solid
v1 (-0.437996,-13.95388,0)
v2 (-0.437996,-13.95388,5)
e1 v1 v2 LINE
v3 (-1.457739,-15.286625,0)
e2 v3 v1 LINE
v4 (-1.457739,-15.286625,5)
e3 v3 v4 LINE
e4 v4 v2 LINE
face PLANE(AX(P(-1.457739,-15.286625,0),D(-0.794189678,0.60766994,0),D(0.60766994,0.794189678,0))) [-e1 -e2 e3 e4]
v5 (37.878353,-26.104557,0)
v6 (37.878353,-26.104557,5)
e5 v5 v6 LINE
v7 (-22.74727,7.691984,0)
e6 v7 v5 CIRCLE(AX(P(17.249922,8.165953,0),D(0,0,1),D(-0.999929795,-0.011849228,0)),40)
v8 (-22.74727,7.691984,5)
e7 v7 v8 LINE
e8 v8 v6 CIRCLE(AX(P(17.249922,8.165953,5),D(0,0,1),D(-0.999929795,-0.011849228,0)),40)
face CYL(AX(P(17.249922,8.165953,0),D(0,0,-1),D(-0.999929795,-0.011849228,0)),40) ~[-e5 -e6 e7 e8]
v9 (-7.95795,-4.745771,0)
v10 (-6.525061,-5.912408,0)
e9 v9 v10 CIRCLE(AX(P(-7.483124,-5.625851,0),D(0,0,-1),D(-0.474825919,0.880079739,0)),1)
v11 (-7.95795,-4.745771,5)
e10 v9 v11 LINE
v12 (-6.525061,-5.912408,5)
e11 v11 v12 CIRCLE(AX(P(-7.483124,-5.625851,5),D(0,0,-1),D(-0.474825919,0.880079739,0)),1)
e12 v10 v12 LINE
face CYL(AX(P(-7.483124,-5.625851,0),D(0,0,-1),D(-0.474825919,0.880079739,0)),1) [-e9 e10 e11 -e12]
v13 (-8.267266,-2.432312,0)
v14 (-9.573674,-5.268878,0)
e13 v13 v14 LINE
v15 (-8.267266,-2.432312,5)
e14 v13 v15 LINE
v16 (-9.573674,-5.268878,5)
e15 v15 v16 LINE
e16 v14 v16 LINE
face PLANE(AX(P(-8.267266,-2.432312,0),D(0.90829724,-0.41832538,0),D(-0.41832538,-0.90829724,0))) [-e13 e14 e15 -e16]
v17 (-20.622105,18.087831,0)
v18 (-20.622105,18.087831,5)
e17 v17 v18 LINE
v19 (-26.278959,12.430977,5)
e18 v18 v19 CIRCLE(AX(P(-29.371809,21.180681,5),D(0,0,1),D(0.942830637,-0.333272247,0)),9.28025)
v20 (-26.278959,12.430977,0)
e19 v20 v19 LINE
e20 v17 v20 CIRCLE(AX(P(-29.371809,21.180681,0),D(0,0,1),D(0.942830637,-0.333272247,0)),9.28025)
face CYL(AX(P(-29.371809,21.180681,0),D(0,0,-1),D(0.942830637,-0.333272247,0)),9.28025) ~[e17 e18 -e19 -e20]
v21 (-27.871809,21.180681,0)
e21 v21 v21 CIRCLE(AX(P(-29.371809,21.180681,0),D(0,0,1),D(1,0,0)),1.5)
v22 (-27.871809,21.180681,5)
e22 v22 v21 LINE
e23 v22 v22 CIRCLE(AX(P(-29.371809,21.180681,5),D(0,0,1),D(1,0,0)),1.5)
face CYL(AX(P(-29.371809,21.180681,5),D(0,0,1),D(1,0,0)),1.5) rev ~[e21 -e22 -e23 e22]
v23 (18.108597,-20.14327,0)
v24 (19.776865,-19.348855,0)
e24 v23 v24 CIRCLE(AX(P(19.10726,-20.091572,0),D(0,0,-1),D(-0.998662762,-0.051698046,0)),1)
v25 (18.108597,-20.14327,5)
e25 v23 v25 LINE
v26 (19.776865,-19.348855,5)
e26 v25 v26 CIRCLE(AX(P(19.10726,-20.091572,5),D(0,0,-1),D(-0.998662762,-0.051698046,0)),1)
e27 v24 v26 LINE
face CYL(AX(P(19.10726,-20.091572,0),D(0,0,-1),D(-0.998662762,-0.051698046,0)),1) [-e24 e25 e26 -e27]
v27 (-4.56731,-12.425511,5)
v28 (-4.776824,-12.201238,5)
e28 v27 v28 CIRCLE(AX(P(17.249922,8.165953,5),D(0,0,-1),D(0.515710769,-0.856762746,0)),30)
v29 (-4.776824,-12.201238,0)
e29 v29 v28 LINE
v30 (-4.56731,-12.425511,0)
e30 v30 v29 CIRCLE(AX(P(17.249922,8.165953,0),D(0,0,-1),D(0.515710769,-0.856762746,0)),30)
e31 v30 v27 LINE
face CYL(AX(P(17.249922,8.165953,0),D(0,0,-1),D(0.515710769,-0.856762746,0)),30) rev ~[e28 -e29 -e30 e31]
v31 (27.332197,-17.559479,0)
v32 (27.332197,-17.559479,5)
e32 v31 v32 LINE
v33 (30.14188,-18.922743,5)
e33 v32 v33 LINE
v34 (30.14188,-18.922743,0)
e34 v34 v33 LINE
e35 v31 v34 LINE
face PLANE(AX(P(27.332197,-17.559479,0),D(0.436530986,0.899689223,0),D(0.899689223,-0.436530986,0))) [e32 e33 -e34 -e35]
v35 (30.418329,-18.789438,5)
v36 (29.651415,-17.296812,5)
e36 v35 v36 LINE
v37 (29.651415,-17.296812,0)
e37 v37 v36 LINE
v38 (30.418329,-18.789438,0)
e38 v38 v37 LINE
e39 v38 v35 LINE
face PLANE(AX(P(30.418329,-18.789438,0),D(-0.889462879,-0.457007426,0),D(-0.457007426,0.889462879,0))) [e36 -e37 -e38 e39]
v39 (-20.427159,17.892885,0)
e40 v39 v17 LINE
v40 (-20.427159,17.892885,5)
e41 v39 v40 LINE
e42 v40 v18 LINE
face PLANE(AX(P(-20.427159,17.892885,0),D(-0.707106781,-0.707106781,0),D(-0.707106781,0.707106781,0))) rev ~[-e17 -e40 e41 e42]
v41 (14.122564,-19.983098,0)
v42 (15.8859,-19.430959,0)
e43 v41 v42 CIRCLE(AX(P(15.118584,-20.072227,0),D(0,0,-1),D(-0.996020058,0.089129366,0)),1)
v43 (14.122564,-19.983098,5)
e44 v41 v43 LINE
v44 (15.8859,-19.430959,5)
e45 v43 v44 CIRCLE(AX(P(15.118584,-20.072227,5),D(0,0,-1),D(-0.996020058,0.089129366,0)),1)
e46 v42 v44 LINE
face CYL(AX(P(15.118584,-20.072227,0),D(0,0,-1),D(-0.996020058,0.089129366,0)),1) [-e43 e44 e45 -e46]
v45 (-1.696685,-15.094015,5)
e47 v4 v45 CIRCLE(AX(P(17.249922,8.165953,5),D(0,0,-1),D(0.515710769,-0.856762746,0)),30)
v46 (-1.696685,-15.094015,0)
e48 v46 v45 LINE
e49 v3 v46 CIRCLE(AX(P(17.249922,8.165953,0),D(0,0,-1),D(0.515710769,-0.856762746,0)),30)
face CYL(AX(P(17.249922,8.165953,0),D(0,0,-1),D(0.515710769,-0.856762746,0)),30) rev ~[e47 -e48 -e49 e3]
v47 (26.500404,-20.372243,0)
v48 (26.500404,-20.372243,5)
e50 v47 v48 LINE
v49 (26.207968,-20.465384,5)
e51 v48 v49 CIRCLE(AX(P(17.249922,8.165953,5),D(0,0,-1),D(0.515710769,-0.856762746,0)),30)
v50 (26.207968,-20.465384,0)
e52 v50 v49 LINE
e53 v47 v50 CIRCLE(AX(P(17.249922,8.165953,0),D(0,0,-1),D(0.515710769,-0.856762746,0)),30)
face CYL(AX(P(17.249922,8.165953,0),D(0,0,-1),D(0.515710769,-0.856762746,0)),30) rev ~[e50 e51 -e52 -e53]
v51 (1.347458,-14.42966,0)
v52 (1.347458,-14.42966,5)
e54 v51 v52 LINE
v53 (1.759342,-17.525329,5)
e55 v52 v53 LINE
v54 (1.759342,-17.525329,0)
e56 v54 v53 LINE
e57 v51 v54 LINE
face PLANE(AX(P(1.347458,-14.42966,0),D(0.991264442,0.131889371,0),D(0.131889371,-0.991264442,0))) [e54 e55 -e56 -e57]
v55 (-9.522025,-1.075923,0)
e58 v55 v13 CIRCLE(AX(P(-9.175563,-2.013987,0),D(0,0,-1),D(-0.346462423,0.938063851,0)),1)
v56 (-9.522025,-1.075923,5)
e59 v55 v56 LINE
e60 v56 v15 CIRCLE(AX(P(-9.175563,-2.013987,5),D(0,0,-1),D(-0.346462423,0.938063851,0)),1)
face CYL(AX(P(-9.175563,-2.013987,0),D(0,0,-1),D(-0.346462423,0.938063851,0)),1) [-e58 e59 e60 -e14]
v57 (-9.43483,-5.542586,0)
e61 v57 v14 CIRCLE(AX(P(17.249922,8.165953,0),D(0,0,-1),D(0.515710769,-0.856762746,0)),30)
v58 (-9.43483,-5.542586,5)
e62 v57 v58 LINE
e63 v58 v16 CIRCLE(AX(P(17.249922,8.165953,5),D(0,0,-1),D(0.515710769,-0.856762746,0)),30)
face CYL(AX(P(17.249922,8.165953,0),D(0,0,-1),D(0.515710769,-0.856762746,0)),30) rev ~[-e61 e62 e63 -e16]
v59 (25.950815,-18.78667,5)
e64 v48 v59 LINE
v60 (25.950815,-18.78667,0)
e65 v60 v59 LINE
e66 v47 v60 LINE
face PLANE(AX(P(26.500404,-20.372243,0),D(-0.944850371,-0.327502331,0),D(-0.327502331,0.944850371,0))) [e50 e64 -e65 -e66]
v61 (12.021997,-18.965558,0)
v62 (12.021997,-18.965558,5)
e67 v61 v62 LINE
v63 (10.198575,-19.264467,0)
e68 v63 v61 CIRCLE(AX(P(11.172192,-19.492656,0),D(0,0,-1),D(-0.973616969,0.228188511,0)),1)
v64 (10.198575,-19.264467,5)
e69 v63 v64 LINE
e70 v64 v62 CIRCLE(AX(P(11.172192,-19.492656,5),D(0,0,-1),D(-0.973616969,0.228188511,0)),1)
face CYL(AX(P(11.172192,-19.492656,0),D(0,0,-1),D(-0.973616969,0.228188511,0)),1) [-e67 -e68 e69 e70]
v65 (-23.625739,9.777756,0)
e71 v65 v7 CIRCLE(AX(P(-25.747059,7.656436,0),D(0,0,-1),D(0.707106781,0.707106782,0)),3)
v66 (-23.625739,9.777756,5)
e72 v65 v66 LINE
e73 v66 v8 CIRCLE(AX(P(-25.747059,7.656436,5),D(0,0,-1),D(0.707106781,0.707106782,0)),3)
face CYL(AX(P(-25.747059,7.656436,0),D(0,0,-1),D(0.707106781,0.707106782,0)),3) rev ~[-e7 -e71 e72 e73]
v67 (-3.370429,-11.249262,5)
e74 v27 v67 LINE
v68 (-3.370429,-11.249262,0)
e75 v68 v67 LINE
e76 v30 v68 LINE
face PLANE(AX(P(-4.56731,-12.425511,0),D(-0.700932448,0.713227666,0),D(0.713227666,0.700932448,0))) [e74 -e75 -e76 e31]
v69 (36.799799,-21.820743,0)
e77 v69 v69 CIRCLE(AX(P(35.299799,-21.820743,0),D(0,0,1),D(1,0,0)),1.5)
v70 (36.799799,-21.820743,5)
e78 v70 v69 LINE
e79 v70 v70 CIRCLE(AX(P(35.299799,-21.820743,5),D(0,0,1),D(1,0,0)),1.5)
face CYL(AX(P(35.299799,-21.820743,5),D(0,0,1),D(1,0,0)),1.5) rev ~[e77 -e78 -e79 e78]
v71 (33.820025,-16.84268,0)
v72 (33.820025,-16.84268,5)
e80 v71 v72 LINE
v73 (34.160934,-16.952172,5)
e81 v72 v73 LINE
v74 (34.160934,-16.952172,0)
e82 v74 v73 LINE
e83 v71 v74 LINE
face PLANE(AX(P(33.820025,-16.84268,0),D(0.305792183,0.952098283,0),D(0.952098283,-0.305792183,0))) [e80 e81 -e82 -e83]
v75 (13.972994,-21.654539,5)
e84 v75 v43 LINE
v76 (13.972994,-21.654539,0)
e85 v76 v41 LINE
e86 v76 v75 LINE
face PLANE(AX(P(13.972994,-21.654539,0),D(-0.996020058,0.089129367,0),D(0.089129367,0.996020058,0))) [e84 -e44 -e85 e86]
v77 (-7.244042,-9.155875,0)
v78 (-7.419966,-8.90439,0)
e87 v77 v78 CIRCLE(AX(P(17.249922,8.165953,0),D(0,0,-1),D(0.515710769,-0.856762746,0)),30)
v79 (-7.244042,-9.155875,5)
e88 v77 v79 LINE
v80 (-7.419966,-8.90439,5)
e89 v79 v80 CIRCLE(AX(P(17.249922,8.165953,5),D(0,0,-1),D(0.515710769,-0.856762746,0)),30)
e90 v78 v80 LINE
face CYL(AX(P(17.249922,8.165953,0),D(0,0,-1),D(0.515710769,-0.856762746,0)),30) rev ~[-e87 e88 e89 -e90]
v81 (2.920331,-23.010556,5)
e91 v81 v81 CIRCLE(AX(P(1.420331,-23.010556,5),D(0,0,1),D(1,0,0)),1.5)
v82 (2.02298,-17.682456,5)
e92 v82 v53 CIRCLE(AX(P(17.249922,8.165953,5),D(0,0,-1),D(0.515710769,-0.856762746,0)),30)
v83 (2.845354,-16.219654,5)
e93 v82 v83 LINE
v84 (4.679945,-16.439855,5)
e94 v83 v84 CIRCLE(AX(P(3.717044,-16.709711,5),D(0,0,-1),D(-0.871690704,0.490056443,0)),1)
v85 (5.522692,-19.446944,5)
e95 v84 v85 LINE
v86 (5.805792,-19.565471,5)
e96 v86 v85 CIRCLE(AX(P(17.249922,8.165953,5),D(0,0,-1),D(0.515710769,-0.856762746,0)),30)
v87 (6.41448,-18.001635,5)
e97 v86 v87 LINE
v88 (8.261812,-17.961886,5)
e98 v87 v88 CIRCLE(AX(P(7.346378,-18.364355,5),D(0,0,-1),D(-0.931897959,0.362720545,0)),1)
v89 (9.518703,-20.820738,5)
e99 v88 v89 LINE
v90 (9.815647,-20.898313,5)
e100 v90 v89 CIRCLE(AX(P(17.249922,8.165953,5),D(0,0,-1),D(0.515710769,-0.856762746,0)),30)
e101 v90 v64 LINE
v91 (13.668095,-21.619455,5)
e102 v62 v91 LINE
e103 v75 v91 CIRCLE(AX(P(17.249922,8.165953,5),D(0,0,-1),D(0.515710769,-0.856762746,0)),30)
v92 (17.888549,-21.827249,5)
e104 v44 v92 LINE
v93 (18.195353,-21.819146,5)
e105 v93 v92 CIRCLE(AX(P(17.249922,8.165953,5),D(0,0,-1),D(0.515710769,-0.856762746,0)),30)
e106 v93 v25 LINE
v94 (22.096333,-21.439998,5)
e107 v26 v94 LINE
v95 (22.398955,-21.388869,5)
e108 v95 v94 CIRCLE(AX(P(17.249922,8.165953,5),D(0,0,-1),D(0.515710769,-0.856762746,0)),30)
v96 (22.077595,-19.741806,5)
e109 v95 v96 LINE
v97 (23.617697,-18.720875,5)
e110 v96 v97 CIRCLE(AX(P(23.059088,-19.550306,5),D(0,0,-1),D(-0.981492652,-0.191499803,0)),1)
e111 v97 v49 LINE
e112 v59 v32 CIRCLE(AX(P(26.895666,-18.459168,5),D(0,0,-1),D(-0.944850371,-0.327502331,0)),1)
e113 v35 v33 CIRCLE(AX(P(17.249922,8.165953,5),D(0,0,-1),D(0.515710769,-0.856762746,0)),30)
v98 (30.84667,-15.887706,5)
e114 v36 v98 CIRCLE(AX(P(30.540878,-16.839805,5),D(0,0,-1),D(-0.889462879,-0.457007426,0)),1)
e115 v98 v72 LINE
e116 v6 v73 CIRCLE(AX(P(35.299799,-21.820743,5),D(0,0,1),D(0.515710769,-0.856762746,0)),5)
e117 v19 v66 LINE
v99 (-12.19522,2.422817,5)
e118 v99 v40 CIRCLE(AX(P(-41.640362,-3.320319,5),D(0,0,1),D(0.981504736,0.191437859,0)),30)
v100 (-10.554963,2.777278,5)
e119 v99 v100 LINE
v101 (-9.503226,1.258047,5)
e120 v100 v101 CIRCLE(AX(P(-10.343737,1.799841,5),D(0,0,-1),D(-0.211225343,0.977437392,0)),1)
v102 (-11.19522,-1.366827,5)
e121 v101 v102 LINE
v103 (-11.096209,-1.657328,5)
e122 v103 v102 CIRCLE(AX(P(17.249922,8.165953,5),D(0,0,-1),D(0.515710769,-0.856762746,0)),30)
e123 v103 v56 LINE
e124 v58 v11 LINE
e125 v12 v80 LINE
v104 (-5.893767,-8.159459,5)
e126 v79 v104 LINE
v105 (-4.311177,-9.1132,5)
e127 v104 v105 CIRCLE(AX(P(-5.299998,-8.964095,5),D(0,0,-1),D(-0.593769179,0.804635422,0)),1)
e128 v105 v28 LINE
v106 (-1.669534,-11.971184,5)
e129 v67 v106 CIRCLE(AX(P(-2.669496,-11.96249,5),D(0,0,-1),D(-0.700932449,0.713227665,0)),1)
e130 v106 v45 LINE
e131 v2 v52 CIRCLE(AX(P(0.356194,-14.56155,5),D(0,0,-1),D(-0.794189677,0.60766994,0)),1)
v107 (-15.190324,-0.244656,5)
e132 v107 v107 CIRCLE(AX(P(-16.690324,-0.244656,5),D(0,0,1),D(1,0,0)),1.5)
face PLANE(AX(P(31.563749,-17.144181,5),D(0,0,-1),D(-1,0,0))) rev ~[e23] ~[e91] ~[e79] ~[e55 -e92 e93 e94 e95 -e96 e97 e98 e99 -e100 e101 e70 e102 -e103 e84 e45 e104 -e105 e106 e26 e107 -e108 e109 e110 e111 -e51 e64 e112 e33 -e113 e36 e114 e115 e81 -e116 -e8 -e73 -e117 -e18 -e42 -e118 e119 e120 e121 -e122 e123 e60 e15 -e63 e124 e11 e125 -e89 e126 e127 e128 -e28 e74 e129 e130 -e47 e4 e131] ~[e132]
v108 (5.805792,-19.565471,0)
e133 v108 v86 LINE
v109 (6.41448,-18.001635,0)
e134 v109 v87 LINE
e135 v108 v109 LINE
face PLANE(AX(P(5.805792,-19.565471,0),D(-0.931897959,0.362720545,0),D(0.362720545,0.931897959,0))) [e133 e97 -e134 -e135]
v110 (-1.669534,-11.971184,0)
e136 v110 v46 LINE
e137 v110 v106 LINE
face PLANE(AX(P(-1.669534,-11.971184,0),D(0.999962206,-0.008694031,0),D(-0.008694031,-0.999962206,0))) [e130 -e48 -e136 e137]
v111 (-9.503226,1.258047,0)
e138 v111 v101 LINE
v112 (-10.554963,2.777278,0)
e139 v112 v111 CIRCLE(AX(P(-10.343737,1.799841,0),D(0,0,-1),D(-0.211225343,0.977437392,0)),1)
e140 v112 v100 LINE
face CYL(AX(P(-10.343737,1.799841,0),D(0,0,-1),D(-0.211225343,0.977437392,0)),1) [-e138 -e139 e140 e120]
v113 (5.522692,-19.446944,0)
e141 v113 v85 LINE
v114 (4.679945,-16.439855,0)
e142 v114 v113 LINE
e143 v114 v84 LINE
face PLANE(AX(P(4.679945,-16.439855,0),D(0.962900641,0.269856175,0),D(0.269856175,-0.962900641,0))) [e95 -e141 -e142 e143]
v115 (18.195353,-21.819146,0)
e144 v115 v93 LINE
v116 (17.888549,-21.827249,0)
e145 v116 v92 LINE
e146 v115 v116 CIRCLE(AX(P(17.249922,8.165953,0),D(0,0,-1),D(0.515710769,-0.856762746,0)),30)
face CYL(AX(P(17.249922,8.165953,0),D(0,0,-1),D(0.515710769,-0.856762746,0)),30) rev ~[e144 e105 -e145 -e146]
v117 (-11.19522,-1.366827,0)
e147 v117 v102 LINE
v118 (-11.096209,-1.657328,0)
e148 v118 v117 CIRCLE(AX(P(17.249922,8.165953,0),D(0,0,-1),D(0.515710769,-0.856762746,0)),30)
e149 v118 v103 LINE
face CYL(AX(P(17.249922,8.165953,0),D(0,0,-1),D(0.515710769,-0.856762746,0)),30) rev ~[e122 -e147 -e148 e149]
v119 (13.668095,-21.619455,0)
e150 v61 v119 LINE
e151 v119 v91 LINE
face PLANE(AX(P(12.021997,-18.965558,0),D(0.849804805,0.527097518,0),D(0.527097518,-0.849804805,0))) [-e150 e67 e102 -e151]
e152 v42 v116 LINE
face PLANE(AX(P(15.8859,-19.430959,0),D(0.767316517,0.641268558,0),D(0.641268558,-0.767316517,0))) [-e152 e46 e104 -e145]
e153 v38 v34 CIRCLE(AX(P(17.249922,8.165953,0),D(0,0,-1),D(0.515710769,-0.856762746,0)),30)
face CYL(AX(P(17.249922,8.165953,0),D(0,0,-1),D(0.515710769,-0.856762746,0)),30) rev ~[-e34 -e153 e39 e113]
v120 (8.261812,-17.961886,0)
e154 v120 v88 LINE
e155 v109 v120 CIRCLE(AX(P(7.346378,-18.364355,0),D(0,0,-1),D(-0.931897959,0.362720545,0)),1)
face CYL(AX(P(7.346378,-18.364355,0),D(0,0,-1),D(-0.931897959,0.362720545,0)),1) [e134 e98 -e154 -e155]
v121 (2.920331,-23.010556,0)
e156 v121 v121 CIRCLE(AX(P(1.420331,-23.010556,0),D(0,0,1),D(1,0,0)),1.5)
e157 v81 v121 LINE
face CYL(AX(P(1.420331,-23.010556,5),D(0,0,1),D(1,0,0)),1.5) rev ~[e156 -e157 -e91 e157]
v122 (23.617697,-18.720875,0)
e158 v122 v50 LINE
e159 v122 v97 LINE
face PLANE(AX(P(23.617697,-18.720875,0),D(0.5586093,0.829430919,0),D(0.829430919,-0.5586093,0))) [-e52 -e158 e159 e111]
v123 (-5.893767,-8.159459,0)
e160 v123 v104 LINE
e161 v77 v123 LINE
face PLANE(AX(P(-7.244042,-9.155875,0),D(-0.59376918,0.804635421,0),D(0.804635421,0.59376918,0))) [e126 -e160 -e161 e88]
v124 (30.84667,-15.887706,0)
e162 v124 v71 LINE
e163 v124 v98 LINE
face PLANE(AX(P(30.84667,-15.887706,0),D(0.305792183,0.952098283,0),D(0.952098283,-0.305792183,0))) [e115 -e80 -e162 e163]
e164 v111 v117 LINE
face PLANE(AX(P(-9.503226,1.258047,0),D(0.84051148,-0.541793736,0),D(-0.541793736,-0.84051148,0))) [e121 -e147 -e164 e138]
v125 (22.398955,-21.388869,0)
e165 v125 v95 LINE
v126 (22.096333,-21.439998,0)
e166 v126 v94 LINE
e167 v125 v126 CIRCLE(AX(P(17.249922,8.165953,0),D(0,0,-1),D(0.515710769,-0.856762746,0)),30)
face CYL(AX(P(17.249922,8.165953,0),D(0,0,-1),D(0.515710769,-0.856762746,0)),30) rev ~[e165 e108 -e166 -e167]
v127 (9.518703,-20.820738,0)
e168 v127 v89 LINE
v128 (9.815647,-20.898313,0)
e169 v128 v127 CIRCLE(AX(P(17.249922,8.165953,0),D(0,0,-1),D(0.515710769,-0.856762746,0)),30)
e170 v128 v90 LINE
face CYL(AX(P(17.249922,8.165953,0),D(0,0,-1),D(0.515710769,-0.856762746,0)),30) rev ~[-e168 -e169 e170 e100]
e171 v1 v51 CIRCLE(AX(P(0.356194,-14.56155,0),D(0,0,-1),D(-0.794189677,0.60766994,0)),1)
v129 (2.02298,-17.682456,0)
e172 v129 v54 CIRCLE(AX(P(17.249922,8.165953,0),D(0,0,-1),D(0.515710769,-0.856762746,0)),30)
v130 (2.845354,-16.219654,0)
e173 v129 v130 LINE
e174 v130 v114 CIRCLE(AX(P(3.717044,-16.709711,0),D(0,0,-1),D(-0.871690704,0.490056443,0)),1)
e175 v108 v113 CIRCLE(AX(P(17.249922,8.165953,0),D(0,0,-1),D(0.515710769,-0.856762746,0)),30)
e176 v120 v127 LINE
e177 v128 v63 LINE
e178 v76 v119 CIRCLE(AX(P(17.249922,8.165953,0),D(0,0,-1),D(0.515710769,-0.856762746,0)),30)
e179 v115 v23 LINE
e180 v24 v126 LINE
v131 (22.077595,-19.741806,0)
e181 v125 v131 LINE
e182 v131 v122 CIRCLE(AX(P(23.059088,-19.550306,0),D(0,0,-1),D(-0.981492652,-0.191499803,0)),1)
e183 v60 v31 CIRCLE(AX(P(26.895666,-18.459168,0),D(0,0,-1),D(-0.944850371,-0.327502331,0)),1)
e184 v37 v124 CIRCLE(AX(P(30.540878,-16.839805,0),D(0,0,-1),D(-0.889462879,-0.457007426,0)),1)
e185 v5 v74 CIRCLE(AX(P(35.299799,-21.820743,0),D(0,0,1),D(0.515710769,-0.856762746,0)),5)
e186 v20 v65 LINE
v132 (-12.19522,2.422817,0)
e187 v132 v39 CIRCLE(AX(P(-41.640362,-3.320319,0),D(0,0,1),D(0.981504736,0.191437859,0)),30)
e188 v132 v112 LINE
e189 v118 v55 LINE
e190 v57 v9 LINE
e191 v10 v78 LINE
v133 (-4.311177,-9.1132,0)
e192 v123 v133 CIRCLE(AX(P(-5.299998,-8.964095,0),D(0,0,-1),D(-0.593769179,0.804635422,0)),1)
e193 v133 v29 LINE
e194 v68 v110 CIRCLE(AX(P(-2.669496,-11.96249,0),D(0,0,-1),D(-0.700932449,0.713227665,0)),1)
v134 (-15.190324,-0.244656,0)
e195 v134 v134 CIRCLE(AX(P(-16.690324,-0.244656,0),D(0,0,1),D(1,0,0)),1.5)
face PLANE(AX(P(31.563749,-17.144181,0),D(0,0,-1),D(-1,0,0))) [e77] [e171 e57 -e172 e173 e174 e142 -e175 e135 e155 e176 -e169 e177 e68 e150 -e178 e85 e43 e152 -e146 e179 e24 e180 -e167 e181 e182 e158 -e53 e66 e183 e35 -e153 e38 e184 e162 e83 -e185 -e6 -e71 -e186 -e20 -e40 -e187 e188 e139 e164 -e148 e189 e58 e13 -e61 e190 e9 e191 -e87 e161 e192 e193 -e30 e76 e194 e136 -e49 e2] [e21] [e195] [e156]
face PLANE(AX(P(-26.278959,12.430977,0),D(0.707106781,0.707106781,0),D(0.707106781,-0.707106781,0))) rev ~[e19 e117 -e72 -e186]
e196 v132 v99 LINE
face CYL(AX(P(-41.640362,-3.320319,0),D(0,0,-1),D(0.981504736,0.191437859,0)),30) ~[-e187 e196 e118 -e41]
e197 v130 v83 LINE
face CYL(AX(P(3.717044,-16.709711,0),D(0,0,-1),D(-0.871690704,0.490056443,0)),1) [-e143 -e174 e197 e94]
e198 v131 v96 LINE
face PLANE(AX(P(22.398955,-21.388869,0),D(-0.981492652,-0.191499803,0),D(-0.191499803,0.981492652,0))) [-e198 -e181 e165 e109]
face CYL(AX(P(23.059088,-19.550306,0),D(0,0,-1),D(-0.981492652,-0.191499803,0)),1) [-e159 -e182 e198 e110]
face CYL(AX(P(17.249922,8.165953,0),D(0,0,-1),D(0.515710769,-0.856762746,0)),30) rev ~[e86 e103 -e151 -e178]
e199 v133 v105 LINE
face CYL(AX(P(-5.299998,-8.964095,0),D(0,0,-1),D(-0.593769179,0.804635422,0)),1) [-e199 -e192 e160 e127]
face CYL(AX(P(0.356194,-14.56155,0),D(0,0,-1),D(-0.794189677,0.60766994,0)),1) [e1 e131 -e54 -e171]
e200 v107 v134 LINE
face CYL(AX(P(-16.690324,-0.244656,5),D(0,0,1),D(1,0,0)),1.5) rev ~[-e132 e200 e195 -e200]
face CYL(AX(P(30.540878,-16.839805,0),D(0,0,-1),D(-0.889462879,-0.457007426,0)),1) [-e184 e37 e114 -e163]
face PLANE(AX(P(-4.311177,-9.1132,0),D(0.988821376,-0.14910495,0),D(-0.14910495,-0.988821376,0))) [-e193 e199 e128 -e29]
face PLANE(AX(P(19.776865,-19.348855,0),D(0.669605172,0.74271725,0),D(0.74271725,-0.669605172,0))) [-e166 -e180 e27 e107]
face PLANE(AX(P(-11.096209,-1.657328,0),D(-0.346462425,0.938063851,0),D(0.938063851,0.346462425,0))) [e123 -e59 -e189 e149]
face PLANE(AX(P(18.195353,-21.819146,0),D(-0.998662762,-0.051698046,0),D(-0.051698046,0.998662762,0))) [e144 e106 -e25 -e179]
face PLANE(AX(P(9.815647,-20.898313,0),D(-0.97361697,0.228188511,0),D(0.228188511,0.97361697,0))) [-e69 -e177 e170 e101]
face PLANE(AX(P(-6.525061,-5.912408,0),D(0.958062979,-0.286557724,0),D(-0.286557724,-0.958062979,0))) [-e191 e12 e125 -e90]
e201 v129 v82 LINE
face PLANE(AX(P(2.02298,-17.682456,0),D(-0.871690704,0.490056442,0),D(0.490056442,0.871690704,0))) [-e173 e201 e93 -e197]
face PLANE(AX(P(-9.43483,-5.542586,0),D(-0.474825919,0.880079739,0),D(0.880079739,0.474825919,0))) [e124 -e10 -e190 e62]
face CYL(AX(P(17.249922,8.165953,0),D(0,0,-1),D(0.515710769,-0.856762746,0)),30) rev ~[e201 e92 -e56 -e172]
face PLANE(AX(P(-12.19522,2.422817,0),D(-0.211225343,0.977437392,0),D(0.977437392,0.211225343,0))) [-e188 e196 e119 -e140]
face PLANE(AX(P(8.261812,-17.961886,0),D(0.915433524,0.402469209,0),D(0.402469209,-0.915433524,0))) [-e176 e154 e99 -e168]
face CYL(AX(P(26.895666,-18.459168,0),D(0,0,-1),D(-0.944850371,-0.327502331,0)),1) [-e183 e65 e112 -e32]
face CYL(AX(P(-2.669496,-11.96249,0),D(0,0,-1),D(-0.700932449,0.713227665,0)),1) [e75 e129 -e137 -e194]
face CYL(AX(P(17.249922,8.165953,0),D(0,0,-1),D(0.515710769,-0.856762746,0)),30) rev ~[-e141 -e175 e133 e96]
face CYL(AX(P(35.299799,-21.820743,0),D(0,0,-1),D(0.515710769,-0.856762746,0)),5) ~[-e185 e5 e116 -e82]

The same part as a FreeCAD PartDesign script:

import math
import FreeCAD as App
import Part
import Sketcher
Q = App.Units.Quantity

doc = App.newDocument("Part")
body = doc.addObject("PartDesign::Body", "Body")

# Sketch on XY plane
sketch1 = body.newObject("Sketcher::SketchObject", "Sketch")
sketch1.AttachmentSupport = (doc.getObject("XY_Plane"), [""])
sketch1.MapMode = "FlatFace"
sketch1.addGeometry([
    Part.LineSegment(App.Vector(-26.28, 12.43, 0), App.Vector(-23.63, 9.78, 0)),  # 0
    Part.ArcOfCircle(Part.Circle(App.Vector(-25.75, 7.66, 0), App.Vector(0, 0, 1), 3), math.radians(1), math.radians(45)),  # 1
    Part.ArcOfCircle(Part.Circle(App.Vector(17.25, 8.17, 0), App.Vector(0, 0, 1), 40), math.radians(-179), math.radians(-59)),  # 2
    Part.ArcOfCircle(Part.Circle(App.Vector(35.3, -21.82, 0), App.Vector(0, 0, 1), 5), math.radians(-59), math.radians(121)),  # 3
    Part.ArcOfCircle(Part.Circle(App.Vector(17.25, 8.17, 0), App.Vector(0, 0, 1), 30), math.radians(-169), math.radians(-59)),  # 4
    Part.ArcOfCircle(Part.Circle(App.Vector(-41.64, -3.32, 0), App.Vector(0, 0, 1), 30), math.radians(11), math.radians(45)),  # 5
    Part.LineSegment(App.Vector(-20.43, 17.89, 0), App.Vector(-20.62, 18.09, 0)),  # 6
    Part.ArcOfCircle(Part.Circle(App.Vector(-29.37, 21.18, 0), App.Vector(0, 0, 1), 9.28), math.radians(-19), math.radians(289)),  # 7
    Part.Circle(App.Vector(-29.37, 21.18, 0), App.Vector(0, 0, 1), 3.5),  # 8
], False)
sketch1.addConstraint([
    Sketcher.Constraint("Tangent", 0, 2, 1, 2),
    Sketcher.Constraint("Tangent", 1, 1, 2, 1),
    Sketcher.Constraint("Tangent", 2, 2, 3, 1),
    Sketcher.Constraint("Tangent", 3, 2, 4, 2),
    Sketcher.Constraint("Tangent", 4, 1, 5, 1),
    Sketcher.Constraint("Tangent", 5, 2, 6, 1),
    Sketcher.Constraint("Coincident", 6, 2, 7, 1),
    Sketcher.Constraint("Coincident", 7, 2, 0, 1),
    Sketcher.Constraint("Coincident", 4, 3, 2, 3),
    Sketcher.Constraint("Coincident", 8, 3, 7, 3),
    Sketcher.Constraint("Equal", 4, 5),
    Sketcher.Constraint("Parallel", 0, 6),
    Sketcher.Constraint("Diameter", 8, Q("7 mm")),
    Sketcher.Constraint("Radius", 1, Q("3 mm")),
    Sketcher.Constraint("Radius", 2, Q("40 mm")),
    Sketcher.Constraint("Radius", 3, Q("5 mm")),
    Sketcher.Constraint("Angle", 0, Q("-45 deg")),
    Sketcher.Constraint("Radius", 7, Q("9.28025 mm")),
    Sketcher.Constraint("DistanceY", 5, 3, 7, 3, Q("24.501 mm")),
    Sketcher.Constraint("DistanceX", -1, 1, 3, 3, Q("35.299799 mm")),
    Sketcher.Constraint("DistanceY", 1, 1, 5, 2, Q("10.200901 mm")),
    Sketcher.Constraint("DistanceX", 1, 3, 5, 2, Q("5.3199 mm")),
    Sketcher.Constraint("DistanceX", 7, 2, 1, 3, Q("0.5319 mm")),
    Sketcher.Constraint("DistanceX", 1, 3, -1, 1, Q("25.747059 mm")),
    Sketcher.Constraint("DistanceY", 5, 3, -1, 1, Q("3.320319 mm")),
])
pad1 = body.newObject("PartDesign::Pad", "Pad")
pad1.Profile = sketch1
pad1.Length = 5

# Sketch on XY plane
sketch2 = body.newObject("Sketcher::SketchObject", "Sketch001")
sketch2.AttachmentSupport = (doc.getObject("XY_Plane"), [""])
sketch2.MapMode = "FlatFace"
sketch2.AttachmentOffset = App.Placement(App.Vector(0, 0, 5), App.Rotation())
sketch2.addGeometry([
    Part.Circle(App.Vector(-29.4, 21.2, 0), App.Vector(0, 0, 1), 3.5),
    Part.Circle(App.Vector(-29.4, 21.2, 0), App.Vector(0, 0, 1), 1.5),
], False)
sketch2.addConstraint([
    Sketcher.Constraint("Coincident", 1, 3, 0, 3),
    Sketcher.Constraint("Diameter", 0, Q("7 mm")),
    Sketcher.Constraint("Diameter", 1, Q("3 mm")),
    Sketcher.Constraint("DistanceX", 0, 3, -1, 1, Q("29.371809 mm")),
    Sketcher.Constraint("DistanceY", -1, 1, 0, 3, Q("21.180681 mm")),
])
pad2 = body.newObject("PartDesign::Pad", "Pad001")
pad2.Profile = sketch2
pad2.Length = 5
pad2.Reversed = True

# Sketch on XY plane
sketch3 = body.newObject("Sketcher::SketchObject", "Sketch002")
sketch3.AttachmentSupport = (doc.getObject("XY_Plane"), [""])
sketch3.MapMode = "FlatFace"
sketch3.AttachmentOffset = App.Placement(App.Vector(0, 0, 5), App.Rotation())
sketch3.addGeometry([
    Part.Circle(App.Vector(35.3, -21.8, 0), App.Vector(0, 0, 1), 1.5),
    Part.Circle(App.Vector(1.4, -23, 0), App.Vector(0, 0, 1), 1.5),
    Part.Circle(App.Vector(-16.7, -0.2, 0), App.Vector(0, 0, 1), 1.5),
], False)
sketch3.addConstraint([
    Sketcher.Constraint("Equal", 0, 1),
    Sketcher.Constraint("Equal", 1, 2),
    Sketcher.Constraint("Diameter", 0, Q("3 mm")),
    Sketcher.Constraint("DistanceX", -1, 1, 0, 3, Q("35.299799 mm")),
    Sketcher.Constraint("DistanceY", 1, 3, 2, 3, Q("22.7659 mm")),
    Sketcher.Constraint("DistanceX", -1, 1, 1, 3, Q("1.420331 mm")),
    Sketcher.Constraint("DistanceY", 0, 3, -1, 1, Q("21.820743 mm")),
    Sketcher.Constraint("DistanceY", 1, 3, -1, 1, Q("23.010556 mm")),
    Sketcher.Constraint("DistanceX", 2, 3, -1, 1, Q("16.690324 mm")),
])
pocket1 = body.newObject("PartDesign::Pocket", "Pocket")
pocket1.Profile = sketch3
pocket1.Type = "ThroughAll"

# Sketch on XY plane
sketch4 = body.newObject("Sketcher::SketchObject", "Sketch003")
sketch4.AttachmentSupport = (doc.getObject("XY_Plane"), [""])
sketch4.MapMode = "FlatFace"
sketch4.addGeometry([
    Part.ArcOfCircle(Part.Circle(App.Vector(17.25, 8.17, 0), App.Vector(0, 0, 1), 30), math.radians(-63.96), math.radians(-58.96)),  # 0
    Part.LineSegment(App.Vector(30.42, -18.79, 0), App.Vector(29.65, -17.3, 0)),  # 1
    Part.ArcOfCircle(Part.Circle(App.Vector(30.54, -16.84, 0), App.Vector(0, 0, 1), 1), math.radians(72), math.radians(207)),  # 2
    Part.LineSegment(App.Vector(30.85, -15.89, 0), App.Vector(33.82, -16.84, 0)),  # 3
    Part.LineSegment(App.Vector(33.82, -16.84, 0), App.Vector(34.16, -16.95, 0)),  # 4
    Part.ArcOfCircle(Part.Circle(App.Vector(35.3, -21.82, 0), App.Vector(0, 0, 1), 5), math.radians(103.17), math.radians(121.04)),  # 5
    Part.ArcOfCircle(Part.Circle(App.Vector(17.25, 8.17, 0), App.Vector(0, 0, 1), 30), math.radians(-72.04), math.radians(-64.55)),  # 6
    Part.LineSegment(App.Vector(26.5, -20.37, 0), App.Vector(25.95, -18.79, 0)),  # 7
    Part.ArcOfCircle(Part.Circle(App.Vector(26.9, -18.46, 0), App.Vector(0, 0, 1), 1), math.radians(64), math.radians(199)),  # 8
    Part.LineSegment(App.Vector(27.33, -17.56, 0), App.Vector(30.14, -18.92, 0)),  # 9
    Part.ArcOfCircle(Part.Circle(App.Vector(17.25, 8.17, 0), App.Vector(0, 0, 1), 30), math.radians(-80.12), math.radians(-72.63)),  # 10
    Part.LineSegment(App.Vector(22.4, -21.39, 0), App.Vector(22.08, -19.74, 0)),  # 11
    Part.ArcOfCircle(Part.Circle(App.Vector(23.06, -19.55, 0), App.Vector(0, 0, 1), 1), math.radians(56), math.radians(191)),  # 12
    Part.LineSegment(App.Vector(23.62, -18.72, 0), App.Vector(26.21, -20.47, 0)),  # 13
    Part.ArcOfCircle(Part.Circle(App.Vector(17.25, 8.17, 0), App.Vector(0, 0, 1), 30), math.radians(-88.19), math.radians(-80.7)),  # 14
    Part.LineSegment(App.Vector(18.2, -21.82, 0), App.Vector(18.11, -20.14, 0)),  # 15
    Part.ArcOfCircle(Part.Circle(App.Vector(19.11, -20.09, 0), App.Vector(0, 0, 1), 1), math.radians(48), math.radians(183)),  # 16
    Part.LineSegment(App.Vector(19.78, -19.35, 0), App.Vector(22.1, -21.44, 0)),  # 17
    Part.ArcOfCircle(Part.Circle(App.Vector(17.25, 8.17, 0), App.Vector(0, 0, 1), 30), math.radians(-96.27), math.radians(-88.78)),  # 18
    Part.LineSegment(App.Vector(13.97, -21.65, 0), App.Vector(14.12, -19.98, 0)),  # 19
    Part.ArcOfCircle(Part.Circle(App.Vector(15.12, -20.07, 0), App.Vector(0, 0, 1), 1), math.radians(40), math.radians(175)),  # 20
    Part.LineSegment(App.Vector(15.89, -19.43, 0), App.Vector(17.89, -21.83, 0)),  # 21
    Part.ArcOfCircle(Part.Circle(App.Vector(17.25, 8.17, 0), App.Vector(0, 0, 1), 30), math.radians(-104.35), math.radians(-96.86)),  # 22
    Part.LineSegment(App.Vector(9.82, -20.9, 0), App.Vector(10.2, -19.26, 0)),  # 23
    Part.ArcOfCircle(Part.Circle(App.Vector(11.17, -19.49, 0), App.Vector(0, 0, 1), 1), math.radians(32), math.radians(167)),  # 24
    Part.LineSegment(App.Vector(12.02, -18.97, 0), App.Vector(13.67, -21.62, 0)),  # 25
    Part.ArcOfCircle(Part.Circle(App.Vector(17.25, 8.17, 0), App.Vector(0, 0, 1), 30), math.radians(-112.42), math.radians(-104.93)),  # 26
    Part.LineSegment(App.Vector(5.81, -19.57, 0), App.Vector(6.41, -18, 0)),  # 27
    Part.ArcOfCircle(Part.Circle(App.Vector(7.35, -18.36, 0), App.Vector(0, 0, 1), 1), math.radians(24), math.radians(159)),  # 28
    Part.LineSegment(App.Vector(8.26, -17.96, 0), App.Vector(9.52, -20.82, 0)),  # 29
    Part.ArcOfCircle(Part.Circle(App.Vector(17.25, 8.17, 0), App.Vector(0, 0, 1), 30), math.radians(-120.5), math.radians(-113.01)),  # 30
    Part.LineSegment(App.Vector(2.02, -17.68, 0), App.Vector(2.85, -16.22, 0)),  # 31
    Part.ArcOfCircle(Part.Circle(App.Vector(3.72, -16.71, 0), App.Vector(0, 0, 1), 1), math.radians(16), math.radians(151)),  # 32
    Part.LineSegment(App.Vector(4.68, -16.44, 0), App.Vector(5.52, -19.45, 0)),  # 33
    Part.ArcOfCircle(Part.Circle(App.Vector(17.25, 8.17, 0), App.Vector(0, 0, 1), 30), math.radians(-128.58), math.radians(-121.09)),  # 34
    Part.LineSegment(App.Vector(-1.46, -15.29, 0), App.Vector(-0.44, -13.95, 0)),  # 35
    Part.ArcOfCircle(Part.Circle(App.Vector(0.36, -14.56, 0), App.Vector(0, 0, 1), 1), math.radians(8), math.radians(143)),  # 36
    Part.LineSegment(App.Vector(1.35, -14.43, 0), App.Vector(1.76, -17.53, 0)),  # 37
    Part.LineSegment(App.Vector(-9.5, 1.26, 0), App.Vector(-11.2, -1.37, 0)),  # 38
    Part.ArcOfCircle(Part.Circle(App.Vector(17.25, 8.17, 0), App.Vector(0, 0, 1), 30), math.radians(-168.96), math.radians(-161.47)),  # 39
    Part.LineSegment(App.Vector(-12.2, 2.42, 0), App.Vector(-10.55, 2.78, 0)),  # 40
    Part.ArcOfCircle(Part.Circle(App.Vector(-10.34, 1.8, 0), App.Vector(0, 0, 1), 1), math.radians(-33), math.radians(102)),  # 41
    Part.ArcOfCircle(Part.Circle(App.Vector(17.25, 8.17, 0), App.Vector(0, 0, 1), 30), math.radians(-160.89), math.radians(-153.4)),  # 42
    Part.LineSegment(App.Vector(-11.1, -1.66, 0), App.Vector(-9.52, -1.08, 0)),  # 43
    Part.ArcOfCircle(Part.Circle(App.Vector(-9.18, -2.01, 0), App.Vector(0, 0, 1), 1), math.radians(-25), math.radians(110)),  # 44
    Part.LineSegment(App.Vector(-8.27, -2.43, 0), App.Vector(-9.57, -5.27, 0)),  # 45
    Part.ArcOfCircle(Part.Circle(App.Vector(17.25, 8.17, 0), App.Vector(0, 0, 1), 30), math.radians(-152.81), math.radians(-145.32)),  # 46
    Part.LineSegment(App.Vector(-9.43, -5.54, 0), App.Vector(-7.96, -4.75, 0)),  # 47
    Part.ArcOfCircle(Part.Circle(App.Vector(-7.48, -5.63, 0), App.Vector(0, 0, 1), 1), math.radians(-17), math.radians(118)),  # 48
    Part.LineSegment(App.Vector(-6.53, -5.91, 0), App.Vector(-7.42, -8.9, 0)),  # 49
    Part.ArcOfCircle(Part.Circle(App.Vector(17.25, 8.17, 0), App.Vector(0, 0, 1), 30), math.radians(-144.73), math.radians(-137.24)),  # 50
    Part.LineSegment(App.Vector(-7.24, -9.16, 0), App.Vector(-5.89, -8.16, 0)),  # 51
    Part.ArcOfCircle(Part.Circle(App.Vector(-5.3, -8.96, 0), App.Vector(0, 0, 1), 1), math.radians(-9), math.radians(126)),  # 52
    Part.LineSegment(App.Vector(-4.31, -9.11, 0), App.Vector(-4.78, -12.2, 0)),  # 53
    Part.ArcOfCircle(Part.Circle(App.Vector(17.25, 8.17, 0), App.Vector(0, 0, 1), 30), math.radians(-136.66), math.radians(-129.16)),  # 54
    Part.LineSegment(App.Vector(-4.57, -12.43, 0), App.Vector(-3.37, -11.25, 0)),  # 55
    Part.ArcOfCircle(Part.Circle(App.Vector(-2.67, -11.96, 0), App.Vector(0, 0, 1), 1), math.radians(0), math.radians(135)),  # 56
    Part.LineSegment(App.Vector(-1.67, -11.97, 0), App.Vector(-1.7, -15.09, 0)),  # 57
], False)
sketch4.addConstraint([
    Sketcher.Constraint("Coincident", 0, 1, 1, 1),
    Sketcher.Constraint("Tangent", 1, 2, 2, 2),
    Sketcher.Constraint("Tangent", 2, 1, 3, 1),
    Sketcher.Constraint("Coincident", 3, 2, 4, 1),
    Sketcher.Constraint("Coincident", 4, 2, 5, 1),
    Sketcher.Constraint("Tangent", 5, 2, 0, 2),
    Sketcher.Constraint("Coincident", 6, 1, 7, 1),
    Sketcher.Constraint("Tangent", 7, 2, 8, 2),
    Sketcher.Constraint("Tangent", 8, 1, 9, 1),
    Sketcher.Constraint("Coincident", 9, 2, 6, 2),
    Sketcher.Constraint("Coincident", 10, 1, 11, 1),
    Sketcher.Constraint("Tangent", 11, 2, 12, 2),
    Sketcher.Constraint("Tangent", 12, 1, 13, 1),
    Sketcher.Constraint("Coincident", 13, 2, 10, 2),
    Sketcher.Constraint("Coincident", 14, 1, 15, 1),
    Sketcher.Constraint("Tangent", 15, 2, 16, 2),
    Sketcher.Constraint("Tangent", 16, 1, 17, 1),
    Sketcher.Constraint("Coincident", 17, 2, 14, 2),
    Sketcher.Constraint("Coincident", 18, 1, 19, 1),
    Sketcher.Constraint("Tangent", 19, 2, 20, 2),
    Sketcher.Constraint("Tangent", 20, 1, 21, 1),
    Sketcher.Constraint("Coincident", 21, 2, 18, 2),
    Sketcher.Constraint("Coincident", 22, 1, 23, 1),
    Sketcher.Constraint("Tangent", 23, 2, 24, 2),
    Sketcher.Constraint("Tangent", 24, 1, 25, 1),
    Sketcher.Constraint("Coincident", 25, 2, 22, 2),
    Sketcher.Constraint("Coincident", 26, 1, 27, 1),
    Sketcher.Constraint("Tangent", 27, 2, 28, 2),
    Sketcher.Constraint("Tangent", 28, 1, 29, 1),
    Sketcher.Constraint("Coincident", 29, 2, 26, 2),
    Sketcher.Constraint("Coincident", 30, 1, 31, 1),
    Sketcher.Constraint("Tangent", 31, 2, 32, 2),
    Sketcher.Constraint("Tangent", 32, 1, 33, 1),
    Sketcher.Constraint("Coincident", 33, 2, 30, 2),
    Sketcher.Constraint("Coincident", 34, 1, 35, 1),
    Sketcher.Constraint("Tangent", 35, 2, 36, 2),
    Sketcher.Constraint("Tangent", 36, 1, 37, 1),
    Sketcher.Constraint("Coincident", 37, 2, 34, 2),
    Sketcher.Constraint("Coincident", 38, 2, 39, 2),
    Sketcher.Constraint("Coincident", 39, 1, 40, 1),
    Sketcher.Constraint("Tangent", 40, 2, 41, 2),
    Sketcher.Constraint("Tangent", 41, 1, 38, 1),
    Sketcher.Constraint("Coincident", 42, 1, 43, 1),
    Sketcher.Constraint("Tangent", 43, 2, 44, 2),
    Sketcher.Constraint("Tangent", 44, 1, 45, 1),
    Sketcher.Constraint("Coincident", 45, 2, 42, 2),
    Sketcher.Constraint("Coincident", 46, 1, 47, 1),
    Sketcher.Constraint("Tangent", 47, 2, 48, 2),
    Sketcher.Constraint("Tangent", 48, 1, 49, 1),
    Sketcher.Constraint("Coincident", 49, 2, 46, 2),
    Sketcher.Constraint("Coincident", 50, 1, 51, 1),
    Sketcher.Constraint("Tangent", 51, 2, 52, 2),
    Sketcher.Constraint("Tangent", 52, 1, 53, 1),
    Sketcher.Constraint("Coincident", 53, 2, 50, 2),
    Sketcher.Constraint("Coincident", 54, 1, 55, 1),
    Sketcher.Constraint("Tangent", 55, 2, 56, 2),
    Sketcher.Constraint("Tangent", 56, 1, 57, 1),
    Sketcher.Constraint("Coincident", 57, 2, 54, 2),
    Sketcher.Constraint("Coincident", 6, 3, 0, 3),
    Sketcher.Constraint("Coincident", 10, 3, 0, 3),
    Sketcher.Constraint("Coincident", 14, 3, 0, 3),
    Sketcher.Constraint("Coincident", 18, 3, 0, 3),
    Sketcher.Constraint("Coincident", 22, 3, 0, 3),
    Sketcher.Constraint("Coincident", 26, 3, 0, 3),
    Sketcher.Constraint("Coincident", 30, 3, 0, 3),
    Sketcher.Constraint("Coincident", 34, 3, 0, 3),
    Sketcher.Constraint("Coincident", 39, 3, 0, 3),
    Sketcher.Constraint("Coincident", 42, 3, 0, 3),
    Sketcher.Constraint("Coincident", 46, 3, 0, 3),
    Sketcher.Constraint("Coincident", 50, 3, 0, 3),
    Sketcher.Constraint("Coincident", 54, 3, 0, 3),
    Sketcher.Constraint("Equal", 0, 6),
    Sketcher.Constraint("Equal", 2, 8),
    Sketcher.Constraint("Equal", 6, 10),
    Sketcher.Constraint("Equal", 8, 12),
    Sketcher.Constraint("Equal", 10, 14),
    Sketcher.Constraint("Equal", 12, 16),
    Sketcher.Constraint("Equal", 14, 18),
    Sketcher.Constraint("Equal", 16, 20),
    Sketcher.Constraint("Equal", 18, 22),
    Sketcher.Constraint("Equal", 20, 24),
    Sketcher.Constraint("Equal", 22, 26),
    Sketcher.Constraint("Equal", 24, 28),
    Sketcher.Constraint("Equal", 26, 30),
    Sketcher.Constraint("Equal", 28, 32),
    Sketcher.Constraint("Equal", 30, 34),
    Sketcher.Constraint("Equal", 32, 36),
    Sketcher.Constraint("Equal", 34, 39),
    Sketcher.Constraint("Equal", 36, 41),
    Sketcher.Constraint("Equal", 39, 42),
    Sketcher.Constraint("Equal", 41, 44),
    Sketcher.Constraint("Equal", 42, 46),
    Sketcher.Constraint("Equal", 44, 48),
    Sketcher.Constraint("Equal", 46, 50),
    Sketcher.Constraint("Equal", 48, 52),
    Sketcher.Constraint("Equal", 50, 54),
    Sketcher.Constraint("Equal", 52, 56),
    Sketcher.Constraint("Parallel", 3, 4),
    Sketcher.Constraint("Equal", 1, 7),
    Sketcher.Constraint("Equal", 3, 9),
    Sketcher.Constraint("Equal", 7, 11),
    Sketcher.Constraint("Equal", 9, 13),
    Sketcher.Constraint("Equal", 11, 15),
    Sketcher.Constraint("Equal", 13, 17),
    Sketcher.Constraint("Equal", 15, 19),
    Sketcher.Constraint("Equal", 17, 21),
    Sketcher.Constraint("Equal", 19, 23),
    Sketcher.Constraint("Equal", 21, 25),
    Sketcher.Constraint("Equal", 23, 27),
    Sketcher.Constraint("Equal", 25, 29),
    Sketcher.Constraint("Equal", 27, 31),
    Sketcher.Constraint("Equal", 29, 33),
    Sketcher.Constraint("Equal", 31, 35),
    Sketcher.Constraint("Equal", 33, 37),
    Sketcher.Constraint("Equal", 37, 38),
    Sketcher.Constraint("Equal", 35, 40),
    Sketcher.Constraint("Equal", 40, 43),
    Sketcher.Constraint("Equal", 38, 45),
    Sketcher.Constraint("Equal", 43, 47),
    Sketcher.Constraint("Equal", 45, 49),
    Sketcher.Constraint("Equal", 47, 51),
    Sketcher.Constraint("Equal", 49, 53),
    Sketcher.Constraint("Equal", 51, 55),
    Sketcher.Constraint("Equal", 53, 57),
    Sketcher.Constraint("Radius", 0, Q("30.000001 mm")),
    Sketcher.Constraint("Radius", 2, Q("1 mm")),
    Sketcher.Constraint("Radius", 5, Q("5 mm")),
    Sketcher.Constraint("DistanceX", -1, 1, 5, 3, Q("35.299799 mm")),
    Sketcher.Constraint("DistanceX", -1, 1, 20, 1, Q("15.8859 mm")),
    Sketcher.Constraint("DistanceY", 52, 1, -1, 1, Q("9.1132 mm")),
    Sketcher.Constraint("Distance", 1, Q("1.67812 mm")),
    Sketcher.Constraint("Distance", 3, Q("3.122949 mm")),
    Sketcher.Constraint("Distance", 4, Q("0.358061 mm")),
    Sketcher.Constraint("DistanceX", -1, 1, 0, 3, Q("17.249922 mm")),
    Sketcher.Constraint("DistanceX", -1, 1, 2, 3, Q("30.540878 mm")),
    Sketcher.Constraint("DistanceX", -1, 1, 16, 3, Q("19.10726 mm")),
    Sketcher.Constraint("DistanceX", -1, 1, 24, 3, Q("11.172192 mm")),
    Sketcher.Constraint("DistanceX", -1, 1, 28, 3, Q("7.346378 mm")),
    Sketcher.Constraint("DistanceY", 32, 3, -1, 1, Q("16.709711 mm")),
    Sketcher.Constraint("DistanceY", 36, 3, -1, 1, Q("14.56155 mm")),
    Sketcher.Constraint("DistanceY", -1, 1, 41, 3, Q("1.799841 mm")),
    Sketcher.Constraint("DistanceY", 48, 3, -1, 1, Q("5.625851 mm")),
    Sketcher.Constraint("DistanceY", 56, 3, -1, 1, Q("11.96249 mm")),
    Sketcher.Constraint("DistanceX", -1, 1, 0, 1, Q("30.418329 mm")),
    Sketcher.Constraint("DistanceY", 1, 2, -1, 1, Q("17.296812 mm")),
    Sketcher.Constraint("DistanceY", 7, 2, -1, 1, Q("18.78667 mm")),
    Sketcher.Constraint("DistanceY", 8, 1, -1, 1, Q("17.559479 mm")),
    Sketcher.Constraint("DistanceY", 10, 1, -1, 1, Q("21.388869 mm")),
    Sketcher.Constraint("DistanceY", 15, 2, -1, 1, Q("20.14327 mm")),
    Sketcher.Constraint("DistanceY", 18, 1, -1, 1, Q("21.654539 mm")),
    Sketcher.Constraint("DistanceY", 24, 1, -1, 1, Q("18.965558 mm")),
    Sketcher.Constraint("DistanceX", -1, 1, 26, 1, Q("5.805792 mm")),
    Sketcher.Constraint("DistanceX", -1, 1, 30, 1, Q("2.02298 mm")),
    Sketcher.Constraint("DistanceX", 34, 1, -1, 1, Q("1.457739 mm")),
    Sketcher.Constraint("DistanceX", 38, 2, -1, 1, Q("11.19522 mm")),
    Sketcher.Constraint("DistanceX", 42, 1, -1, 1, Q("11.096209 mm")),
    Sketcher.Constraint("DistanceY", 44, 1, -1, 1, Q("2.432312 mm")),
    Sketcher.Constraint("DistanceX", 46, 1, -1, 1, Q("9.43483 mm")),
    Sketcher.Constraint("DistanceY", 51, 2, -1, 1, Q("8.159459 mm")),
    Sketcher.Constraint("DistanceX", 54, 1, -1, 1, Q("4.56731 mm")),
    Sketcher.Constraint("DistanceX", -1, 1, 12, 3, Q("23.059088 mm")),
])
pad3 = body.newObject("PartDesign::Pad", "Pad002")
pad3.Profile = sketch4
pad3.Length = 5

doc.recompute()
